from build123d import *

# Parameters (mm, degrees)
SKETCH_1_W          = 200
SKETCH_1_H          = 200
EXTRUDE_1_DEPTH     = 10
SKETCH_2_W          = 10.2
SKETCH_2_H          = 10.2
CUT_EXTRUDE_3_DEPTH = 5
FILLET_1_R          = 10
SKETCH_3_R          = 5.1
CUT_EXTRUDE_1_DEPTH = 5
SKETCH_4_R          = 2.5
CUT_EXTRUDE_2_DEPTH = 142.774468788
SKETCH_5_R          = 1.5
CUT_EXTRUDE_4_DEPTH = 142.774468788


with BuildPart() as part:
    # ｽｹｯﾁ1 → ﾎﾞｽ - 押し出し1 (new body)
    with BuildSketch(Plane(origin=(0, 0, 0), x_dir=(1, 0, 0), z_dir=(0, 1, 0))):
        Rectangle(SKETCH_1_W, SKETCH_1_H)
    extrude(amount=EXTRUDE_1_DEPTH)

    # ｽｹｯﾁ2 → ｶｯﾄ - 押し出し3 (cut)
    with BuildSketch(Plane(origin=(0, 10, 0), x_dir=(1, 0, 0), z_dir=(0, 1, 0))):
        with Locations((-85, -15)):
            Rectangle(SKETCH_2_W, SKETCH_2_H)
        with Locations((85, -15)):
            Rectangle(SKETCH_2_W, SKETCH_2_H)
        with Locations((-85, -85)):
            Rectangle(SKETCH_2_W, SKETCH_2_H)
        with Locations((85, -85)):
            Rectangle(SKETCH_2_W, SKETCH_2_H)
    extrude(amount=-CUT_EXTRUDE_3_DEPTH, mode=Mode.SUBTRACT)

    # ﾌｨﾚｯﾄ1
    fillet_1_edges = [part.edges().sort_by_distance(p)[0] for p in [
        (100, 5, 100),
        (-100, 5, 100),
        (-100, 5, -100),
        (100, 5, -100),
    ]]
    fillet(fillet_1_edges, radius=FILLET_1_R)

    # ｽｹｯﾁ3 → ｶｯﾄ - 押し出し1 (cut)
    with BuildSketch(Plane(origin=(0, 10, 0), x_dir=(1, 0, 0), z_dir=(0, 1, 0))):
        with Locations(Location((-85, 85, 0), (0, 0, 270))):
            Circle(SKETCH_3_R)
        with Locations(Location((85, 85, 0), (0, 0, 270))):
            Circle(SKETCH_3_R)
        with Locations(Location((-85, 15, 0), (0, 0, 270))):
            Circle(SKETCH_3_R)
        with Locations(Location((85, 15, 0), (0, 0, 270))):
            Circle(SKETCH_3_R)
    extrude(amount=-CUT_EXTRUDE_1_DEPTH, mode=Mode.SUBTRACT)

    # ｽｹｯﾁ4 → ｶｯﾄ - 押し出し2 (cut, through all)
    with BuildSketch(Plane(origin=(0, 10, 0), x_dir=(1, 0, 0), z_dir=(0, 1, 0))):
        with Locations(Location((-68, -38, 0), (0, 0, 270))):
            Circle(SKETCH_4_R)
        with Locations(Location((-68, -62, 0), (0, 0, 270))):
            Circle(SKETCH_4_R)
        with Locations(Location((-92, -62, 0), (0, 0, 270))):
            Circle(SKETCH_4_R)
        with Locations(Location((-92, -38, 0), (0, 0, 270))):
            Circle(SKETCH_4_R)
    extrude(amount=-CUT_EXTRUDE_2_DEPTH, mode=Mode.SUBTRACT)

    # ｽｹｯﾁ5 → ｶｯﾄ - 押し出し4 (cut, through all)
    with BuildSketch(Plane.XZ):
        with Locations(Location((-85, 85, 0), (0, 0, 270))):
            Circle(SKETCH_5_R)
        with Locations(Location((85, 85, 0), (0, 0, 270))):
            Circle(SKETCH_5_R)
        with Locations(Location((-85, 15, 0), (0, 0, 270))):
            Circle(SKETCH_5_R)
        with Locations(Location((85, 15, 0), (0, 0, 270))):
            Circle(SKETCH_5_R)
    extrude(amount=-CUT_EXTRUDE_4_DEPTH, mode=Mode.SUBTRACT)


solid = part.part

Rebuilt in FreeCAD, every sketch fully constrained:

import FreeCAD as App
import Part
import Sketcher
from FreeCAD import Vector


def edges_at(feature, points):
    """Names of the edges that pass closest to the given points."""
    edges = feature.Shape.Edges
    near = lambda p: min(range(len(edges)), key=lambda i: edges[i].distToShape(Part.Vertex(*p))[0])
    return sorted({f"Edge{near(p) + 1}" for p in points})


def add_polygon(sketch, points):
    """Adds a closed chain of lines whose ends are joined by coincident constraints."""
    first, n = sketch.GeometryCount, len(points)
    for a, b in zip(points, points[1:] + points[:1]):
        sketch.addGeometry(Part.LineSegment(App.Vector(*a, 0), App.Vector(*b, 0)), False)
    for i in range(n):
        sketch.addConstraint(Sketcher.Constraint("Coincident", first + i, 2, first + (i + 1) % n, 1))

doc = App.newDocument("Part")
params = doc.addObject("Spreadsheet::Sheet", "Params")
for row, (alias, value) in enumerate([
    ("sketch1_width", "200 mm"),
    ("pad1_length", "10 mm"),
    ("sketch2_width", "10.2 mm"),
    ("pocket1_length", "5 mm"),
    ("fillet_radius", "10 mm"),
    ("sketch3_diameter", "10.2 mm"),
    ("pocket2_length", "5 mm"),
    ("sketch4_diameter", "5 mm"),
    ("sketch5_diameter", "3 mm"),
], start=1):
    params.set(f"A{row}", alias)
    params.set(f"B{row}", "=" + value)
    params.setAlias(f"B{row}", alias)

body = doc.addObject("PartDesign::Body", "Body")

# Sketch on XZ plane
sketch1 = body.newObject("Sketcher::SketchObject", "Sketch")
sketch1.AttachmentSupport = (doc.getObject("XZ_Plane"), [""])
sketch1.MapMode = "FlatFace"
add_polygon(sketch1, [(-100, -100), (-100, 100), (100, 100), (100, -100)])  # lines 0-3
sketch1.addConstraint(Sketcher.Constraint("Vertical", 0))
sketch1.addConstraint(Sketcher.Constraint("Horizontal", 1))
sketch1.addConstraint(Sketcher.Constraint("Vertical", 2))
sketch1.addConstraint(Sketcher.Constraint("Horizontal", 3))
sketch1.addConstraint(Sketcher.Constraint("Symmetric", 0, 2, 2, 2, -1, 1))
sketch1.addConstraint(Sketcher.Constraint("Equal", 3, 0))
sketch1.addConstraint(Sketcher.Constraint("DistanceX", 1, 1, 1, 2, 200.0))
sketch1.setExpression("Constraints[10]", "Params.sketch1_width")
pad1 = body.newObject("PartDesign::Pad", "Pad")
pad1.Profile = sketch1
pad1.setExpression("Length", "Params.pad1_length")
pad1.Reversed = True

# Sketch on XZ plane
sketch2 = body.newObject("Sketcher::SketchObject", "Sketch001")
sketch2.AttachmentSupport = (doc.getObject("XZ_Plane"), [""])
sketch2.MapMode = "FlatFace"
sketch2.AttachmentOffset = App.Placement(Vector(0, 0, -10), App.Rotation())
add_polygon(sketch2, [(-90, 10), (-90, 20), (-80, 20), (-80, 10)])  # lines 0-3
add_polygon(sketch2, [(80, 10), (80, 20), (90, 20), (90, 10)])  # lines 4-7
add_polygon(sketch2, [(-90, 80), (-90, 90), (-80, 90), (-80, 80)])  # lines 8-11
add_polygon(sketch2, [(80, 80), (80, 90), (90, 90), (90, 80)])  # lines 12-15
sketch2.addConstraint(Sketcher.Constraint("Vertical", 0))
sketch2.addConstraint(Sketcher.Constraint("Horizontal", 1))
sketch2.addConstraint(Sketcher.Constraint("Vertical", 2))
sketch2.addConstraint(Sketcher.Constraint("Horizontal", 3))
sketch2.addConstraint(Sketcher.Constraint("Vertical", 4))
sketch2.addConstraint(Sketcher.Constraint("Horizontal", 5))
sketch2.addConstraint(Sketcher.Constraint("Vertical", 6))
sketch2.addConstraint(Sketcher.Constraint("Horizontal", 7))
sketch2.addConstraint(Sketcher.Constraint("Vertical", 8))
sketch2.addConstraint(Sketcher.Constraint("Horizontal", 9))
sketch2.addConstraint(Sketcher.Constraint("Vertical", 10))
sketch2.addConstraint(Sketcher.Constraint("Horizontal", 11))
sketch2.addConstraint(Sketcher.Constraint("Vertical", 12))
sketch2.addConstraint(Sketcher.Constraint("Horizontal", 13))
sketch2.addConstraint(Sketcher.Constraint("Vertical", 14))
sketch2.addConstraint(Sketcher.Constraint("Horizontal", 15))
sketch2.addConstraint(Sketcher.Constraint("Symmetric", 1, 2, 4, 2, -2))
sketch2.addConstraint(Sketcher.Constraint("Symmetric", 3, 2, 6, 2, -2))
sketch2.addConstraint(Sketcher.Constraint("Symmetric", 9, 2, 12, 2, -2))
sketch2.addConstraint(Sketcher.Constraint("Symmetric", 11, 2, 14, 2, -2))
sketch2.addConstraint(Sketcher.Constraint("Vertical", 3, 2, 8, 2))
sketch2.addConstraint(Sketcher.Constraint("Vertical", 2, 2, 9, 2))
sketch2.addConstraint(Sketcher.Constraint("Equal", 15, 0))
sketch2.addConstraint(Sketcher.Constraint("Equal", 6, 8))
sketch2.addConstraint(Sketcher.Constraint("DistanceX", 1, 1, 1, 2, 10.2))
sketch2.addConstraint(Sketcher.Constraint("DistanceX", 0, 2, 4, 2, 170.0))
sketch2.addConstraint(Sketcher.Constraint("DistanceY", 0, 2, 8, 2, 70.0))
sketch2.addConstraint(Sketcher.Constraint("DistanceY", -1, 1, 0, 2, 20.1))
sketch2.setExpression("Constraints[40]", "Params.sketch2_width")
pocket1 = body.newObject("PartDesign::Pocket", "Pocket")
pocket1.Profile = sketch2
pocket1.setExpression("Length", "Params.pocket1_length")
pocket1.Reversed = True
doc.recompute()

fillet = body.newObject("PartDesign::Fillet", "Fillet")
fillet.Base = (pocket1, edges_at(pocket1, [
    (100, 5, 100),
    (-100, 5, 100),
    (-100, 5, -100),
    (100, 5, -100),
]))
fillet.setExpression("Radius", "Params.fillet_radius")

# Sketch on XZ plane
sketch3 = body.newObject("Sketcher::SketchObject", "Sketch002")
sketch3.AttachmentSupport = (doc.getObject("XZ_Plane"), [""])
sketch3.MapMode = "FlatFace"
sketch3.AttachmentOffset = App.Placement(Vector(0, 0, -10), App.Rotation())
sketch3.addGeometry(Part.Circle(Vector(-85, -85, 0), Vector(0, 0, 1), 5), False)
sketch3.addGeometry(Part.Circle(Vector(85, -85, 0), Vector(0, 0, 1), 5), False)
sketch3.addGeometry(Part.Circle(Vector(-85, -15, 0), Vector(0, 0, 1), 5), False)
sketch3.addGeometry(Part.Circle(Vector(85, -15, 0), Vector(0, 0, 1), 5), False)
sketch3.addConstraint(Sketcher.Constraint("Equal", 0, 1))
sketch3.addConstraint(Sketcher.Constraint("Equal", 1, 2))
sketch3.addConstraint(Sketcher.Constraint("Equal", 2, 3))
sketch3.addConstraint(Sketcher.Constraint("Symmetric", 0, 3, 1, 3, -2))
sketch3.addConstraint(Sketcher.Constraint("Symmetric", 2, 3, 3, 3, -2))
sketch3.addConstraint(Sketcher.Constraint("Vertical", 0, 3, 2, 3))
sketch3.addConstraint(Sketcher.Constraint("Diameter", 0, 10.2))
sketch3.addConstraint(Sketcher.Constraint("DistanceX", 0, 3, -1, 1, 85.0))
sketch3.addConstraint(Sketcher.Constraint("DistanceY", 0, 3, -1, 1, 85.0))
sketch3.addConstraint(Sketcher.Constraint("DistanceY", 2, 3, -1, 1, 15.0))
sketch3.setExpression("Constraints[6]", "Params.sketch3_diameter")
pocket2 = body.newObject("PartDesign::Pocket", "Pocket001")
pocket2.Profile = sketch3
pocket2.setExpression("Length", "Params.pocket2_length")
pocket2.Reversed = True

# Sketch on XZ plane
sketch4 = body.newObject("Sketcher::SketchObject", "Sketch003")
sketch4.AttachmentSupport = (doc.getObject("XZ_Plane"), [""])
sketch4.MapMode = "FlatFace"
sketch4.AttachmentOffset = App.Placement(Vector(0, 0, -10), App.Rotation())
sketch4.addGeometry(Part.Circle(Vector(-68, 38, 0), Vector(0, 0, 1), 2.5), False)
sketch4.addGeometry(Part.Circle(Vector(-68, 62, 0), Vector(0, 0, 1), 2.5), False)
sketch4.addGeometry(Part.Circle(Vector(-92, 62, 0), Vector(0, 0, 1), 2.5), False)
sketch4.addGeometry(Part.Circle(Vector(-92, 38, 0), Vector(0, 0, 1), 2.5), False)
sketch4.addConstraint(Sketcher.Constraint("Equal", 0, 1))
sketch4.addConstraint(Sketcher.Constraint("Equal", 1, 2))
sketch4.addConstraint(Sketcher.Constraint("Equal", 2, 3))
sketch4.addConstraint(Sketcher.Constraint("Horizontal", 1, 3, 2, 3))
sketch4.addConstraint(Sketcher.Constraint("Horizontal", 0, 3, 3, 3))
sketch4.addConstraint(Sketcher.Constraint("Vertical", 0, 3, 1, 3))
sketch4.addConstraint(Sketcher.Constraint("Vertical", 2, 3, 3, 3))
sketch4.addConstraint(Sketcher.Constraint("Diameter", 0, 5.0))
sketch4.addConstraint(Sketcher.Constraint("DistanceX", 0, 3, -1, 1, 68.0))
sketch4.addConstraint(Sketcher.Constraint("DistanceY", -1, 1, 0, 3, 38.0))
sketch4.addConstraint(Sketcher.Constraint("DistanceY", -1, 1, 1, 3, 62.0))
sketch4.addConstraint(Sketcher.Constraint("DistanceX", 2, 3, -1, 1, 92.0))
sketch4.setExpression("Constraints[7]", "Params.sketch4_diameter")
pocket3 = body.newObject("PartDesign::Pocket", "Pocket002")
pocket3.Profile = sketch4
pocket3.Type = "ThroughAll"
pocket3.Reversed = True

# Sketch on XZ plane
sketch5 = body.newObject("Sketcher::SketchObject", "Sketch004")
sketch5.AttachmentSupport = (doc.getObject("XZ_Plane"), [""])
sketch5.MapMode = "FlatFace"
sketch5.addGeometry(Part.Circle(Vector(-85, 85, 0), Vector(0, 0, 1), 1.5), False)
sketch5.addGeometry(Part.Circle(Vector(85, 85, 0), Vector(0, 0, 1), 1.5), False)
sketch5.addGeometry(Part.Circle(Vector(-85, 15, 0), Vector(0, 0, 1), 1.5), False)
sketch5.addGeometry(Part.Circle(Vector(85, 15, 0), Vector(0, 0, 1), 1.5), False)
sketch5.addConstraint(Sketcher.Constraint("Equal", 0, 1))
sketch5.addConstraint(Sketcher.Constraint("Equal", 1, 2))
sketch5.addConstraint(Sketcher.Constraint("Equal", 2, 3))
sketch5.addConstraint(Sketcher.Constraint("Symmetric", 0, 3, 1, 3, -2))
sketch5.addConstraint(Sketcher.Constraint("Symmetric", 2, 3, 3, 3, -2))
sketch5.addConstraint(Sketcher.Constraint("Vertical", 0, 3, 2, 3))
sketch5.addConstraint(Sketcher.Constraint("Diameter", 0, 3.0))
sketch5.addConstraint(Sketcher.Constraint("DistanceX", 0, 3, -1, 1, 85.0))
sketch5.addConstraint(Sketcher.Constraint("DistanceY", -1, 1, 0, 3, 85.0))
sketch5.addConstraint(Sketcher.Constraint("DistanceY", -1, 1, 2, 3, 15.0))
sketch5.setExpression("Constraints[6]", "Params.sketch5_diameter")
pocket4 = body.newObject("PartDesign::Pocket", "Pocket003")
pocket4.Profile = sketch5
pocket4.Type = "ThroughAll"

doc.recompute()
